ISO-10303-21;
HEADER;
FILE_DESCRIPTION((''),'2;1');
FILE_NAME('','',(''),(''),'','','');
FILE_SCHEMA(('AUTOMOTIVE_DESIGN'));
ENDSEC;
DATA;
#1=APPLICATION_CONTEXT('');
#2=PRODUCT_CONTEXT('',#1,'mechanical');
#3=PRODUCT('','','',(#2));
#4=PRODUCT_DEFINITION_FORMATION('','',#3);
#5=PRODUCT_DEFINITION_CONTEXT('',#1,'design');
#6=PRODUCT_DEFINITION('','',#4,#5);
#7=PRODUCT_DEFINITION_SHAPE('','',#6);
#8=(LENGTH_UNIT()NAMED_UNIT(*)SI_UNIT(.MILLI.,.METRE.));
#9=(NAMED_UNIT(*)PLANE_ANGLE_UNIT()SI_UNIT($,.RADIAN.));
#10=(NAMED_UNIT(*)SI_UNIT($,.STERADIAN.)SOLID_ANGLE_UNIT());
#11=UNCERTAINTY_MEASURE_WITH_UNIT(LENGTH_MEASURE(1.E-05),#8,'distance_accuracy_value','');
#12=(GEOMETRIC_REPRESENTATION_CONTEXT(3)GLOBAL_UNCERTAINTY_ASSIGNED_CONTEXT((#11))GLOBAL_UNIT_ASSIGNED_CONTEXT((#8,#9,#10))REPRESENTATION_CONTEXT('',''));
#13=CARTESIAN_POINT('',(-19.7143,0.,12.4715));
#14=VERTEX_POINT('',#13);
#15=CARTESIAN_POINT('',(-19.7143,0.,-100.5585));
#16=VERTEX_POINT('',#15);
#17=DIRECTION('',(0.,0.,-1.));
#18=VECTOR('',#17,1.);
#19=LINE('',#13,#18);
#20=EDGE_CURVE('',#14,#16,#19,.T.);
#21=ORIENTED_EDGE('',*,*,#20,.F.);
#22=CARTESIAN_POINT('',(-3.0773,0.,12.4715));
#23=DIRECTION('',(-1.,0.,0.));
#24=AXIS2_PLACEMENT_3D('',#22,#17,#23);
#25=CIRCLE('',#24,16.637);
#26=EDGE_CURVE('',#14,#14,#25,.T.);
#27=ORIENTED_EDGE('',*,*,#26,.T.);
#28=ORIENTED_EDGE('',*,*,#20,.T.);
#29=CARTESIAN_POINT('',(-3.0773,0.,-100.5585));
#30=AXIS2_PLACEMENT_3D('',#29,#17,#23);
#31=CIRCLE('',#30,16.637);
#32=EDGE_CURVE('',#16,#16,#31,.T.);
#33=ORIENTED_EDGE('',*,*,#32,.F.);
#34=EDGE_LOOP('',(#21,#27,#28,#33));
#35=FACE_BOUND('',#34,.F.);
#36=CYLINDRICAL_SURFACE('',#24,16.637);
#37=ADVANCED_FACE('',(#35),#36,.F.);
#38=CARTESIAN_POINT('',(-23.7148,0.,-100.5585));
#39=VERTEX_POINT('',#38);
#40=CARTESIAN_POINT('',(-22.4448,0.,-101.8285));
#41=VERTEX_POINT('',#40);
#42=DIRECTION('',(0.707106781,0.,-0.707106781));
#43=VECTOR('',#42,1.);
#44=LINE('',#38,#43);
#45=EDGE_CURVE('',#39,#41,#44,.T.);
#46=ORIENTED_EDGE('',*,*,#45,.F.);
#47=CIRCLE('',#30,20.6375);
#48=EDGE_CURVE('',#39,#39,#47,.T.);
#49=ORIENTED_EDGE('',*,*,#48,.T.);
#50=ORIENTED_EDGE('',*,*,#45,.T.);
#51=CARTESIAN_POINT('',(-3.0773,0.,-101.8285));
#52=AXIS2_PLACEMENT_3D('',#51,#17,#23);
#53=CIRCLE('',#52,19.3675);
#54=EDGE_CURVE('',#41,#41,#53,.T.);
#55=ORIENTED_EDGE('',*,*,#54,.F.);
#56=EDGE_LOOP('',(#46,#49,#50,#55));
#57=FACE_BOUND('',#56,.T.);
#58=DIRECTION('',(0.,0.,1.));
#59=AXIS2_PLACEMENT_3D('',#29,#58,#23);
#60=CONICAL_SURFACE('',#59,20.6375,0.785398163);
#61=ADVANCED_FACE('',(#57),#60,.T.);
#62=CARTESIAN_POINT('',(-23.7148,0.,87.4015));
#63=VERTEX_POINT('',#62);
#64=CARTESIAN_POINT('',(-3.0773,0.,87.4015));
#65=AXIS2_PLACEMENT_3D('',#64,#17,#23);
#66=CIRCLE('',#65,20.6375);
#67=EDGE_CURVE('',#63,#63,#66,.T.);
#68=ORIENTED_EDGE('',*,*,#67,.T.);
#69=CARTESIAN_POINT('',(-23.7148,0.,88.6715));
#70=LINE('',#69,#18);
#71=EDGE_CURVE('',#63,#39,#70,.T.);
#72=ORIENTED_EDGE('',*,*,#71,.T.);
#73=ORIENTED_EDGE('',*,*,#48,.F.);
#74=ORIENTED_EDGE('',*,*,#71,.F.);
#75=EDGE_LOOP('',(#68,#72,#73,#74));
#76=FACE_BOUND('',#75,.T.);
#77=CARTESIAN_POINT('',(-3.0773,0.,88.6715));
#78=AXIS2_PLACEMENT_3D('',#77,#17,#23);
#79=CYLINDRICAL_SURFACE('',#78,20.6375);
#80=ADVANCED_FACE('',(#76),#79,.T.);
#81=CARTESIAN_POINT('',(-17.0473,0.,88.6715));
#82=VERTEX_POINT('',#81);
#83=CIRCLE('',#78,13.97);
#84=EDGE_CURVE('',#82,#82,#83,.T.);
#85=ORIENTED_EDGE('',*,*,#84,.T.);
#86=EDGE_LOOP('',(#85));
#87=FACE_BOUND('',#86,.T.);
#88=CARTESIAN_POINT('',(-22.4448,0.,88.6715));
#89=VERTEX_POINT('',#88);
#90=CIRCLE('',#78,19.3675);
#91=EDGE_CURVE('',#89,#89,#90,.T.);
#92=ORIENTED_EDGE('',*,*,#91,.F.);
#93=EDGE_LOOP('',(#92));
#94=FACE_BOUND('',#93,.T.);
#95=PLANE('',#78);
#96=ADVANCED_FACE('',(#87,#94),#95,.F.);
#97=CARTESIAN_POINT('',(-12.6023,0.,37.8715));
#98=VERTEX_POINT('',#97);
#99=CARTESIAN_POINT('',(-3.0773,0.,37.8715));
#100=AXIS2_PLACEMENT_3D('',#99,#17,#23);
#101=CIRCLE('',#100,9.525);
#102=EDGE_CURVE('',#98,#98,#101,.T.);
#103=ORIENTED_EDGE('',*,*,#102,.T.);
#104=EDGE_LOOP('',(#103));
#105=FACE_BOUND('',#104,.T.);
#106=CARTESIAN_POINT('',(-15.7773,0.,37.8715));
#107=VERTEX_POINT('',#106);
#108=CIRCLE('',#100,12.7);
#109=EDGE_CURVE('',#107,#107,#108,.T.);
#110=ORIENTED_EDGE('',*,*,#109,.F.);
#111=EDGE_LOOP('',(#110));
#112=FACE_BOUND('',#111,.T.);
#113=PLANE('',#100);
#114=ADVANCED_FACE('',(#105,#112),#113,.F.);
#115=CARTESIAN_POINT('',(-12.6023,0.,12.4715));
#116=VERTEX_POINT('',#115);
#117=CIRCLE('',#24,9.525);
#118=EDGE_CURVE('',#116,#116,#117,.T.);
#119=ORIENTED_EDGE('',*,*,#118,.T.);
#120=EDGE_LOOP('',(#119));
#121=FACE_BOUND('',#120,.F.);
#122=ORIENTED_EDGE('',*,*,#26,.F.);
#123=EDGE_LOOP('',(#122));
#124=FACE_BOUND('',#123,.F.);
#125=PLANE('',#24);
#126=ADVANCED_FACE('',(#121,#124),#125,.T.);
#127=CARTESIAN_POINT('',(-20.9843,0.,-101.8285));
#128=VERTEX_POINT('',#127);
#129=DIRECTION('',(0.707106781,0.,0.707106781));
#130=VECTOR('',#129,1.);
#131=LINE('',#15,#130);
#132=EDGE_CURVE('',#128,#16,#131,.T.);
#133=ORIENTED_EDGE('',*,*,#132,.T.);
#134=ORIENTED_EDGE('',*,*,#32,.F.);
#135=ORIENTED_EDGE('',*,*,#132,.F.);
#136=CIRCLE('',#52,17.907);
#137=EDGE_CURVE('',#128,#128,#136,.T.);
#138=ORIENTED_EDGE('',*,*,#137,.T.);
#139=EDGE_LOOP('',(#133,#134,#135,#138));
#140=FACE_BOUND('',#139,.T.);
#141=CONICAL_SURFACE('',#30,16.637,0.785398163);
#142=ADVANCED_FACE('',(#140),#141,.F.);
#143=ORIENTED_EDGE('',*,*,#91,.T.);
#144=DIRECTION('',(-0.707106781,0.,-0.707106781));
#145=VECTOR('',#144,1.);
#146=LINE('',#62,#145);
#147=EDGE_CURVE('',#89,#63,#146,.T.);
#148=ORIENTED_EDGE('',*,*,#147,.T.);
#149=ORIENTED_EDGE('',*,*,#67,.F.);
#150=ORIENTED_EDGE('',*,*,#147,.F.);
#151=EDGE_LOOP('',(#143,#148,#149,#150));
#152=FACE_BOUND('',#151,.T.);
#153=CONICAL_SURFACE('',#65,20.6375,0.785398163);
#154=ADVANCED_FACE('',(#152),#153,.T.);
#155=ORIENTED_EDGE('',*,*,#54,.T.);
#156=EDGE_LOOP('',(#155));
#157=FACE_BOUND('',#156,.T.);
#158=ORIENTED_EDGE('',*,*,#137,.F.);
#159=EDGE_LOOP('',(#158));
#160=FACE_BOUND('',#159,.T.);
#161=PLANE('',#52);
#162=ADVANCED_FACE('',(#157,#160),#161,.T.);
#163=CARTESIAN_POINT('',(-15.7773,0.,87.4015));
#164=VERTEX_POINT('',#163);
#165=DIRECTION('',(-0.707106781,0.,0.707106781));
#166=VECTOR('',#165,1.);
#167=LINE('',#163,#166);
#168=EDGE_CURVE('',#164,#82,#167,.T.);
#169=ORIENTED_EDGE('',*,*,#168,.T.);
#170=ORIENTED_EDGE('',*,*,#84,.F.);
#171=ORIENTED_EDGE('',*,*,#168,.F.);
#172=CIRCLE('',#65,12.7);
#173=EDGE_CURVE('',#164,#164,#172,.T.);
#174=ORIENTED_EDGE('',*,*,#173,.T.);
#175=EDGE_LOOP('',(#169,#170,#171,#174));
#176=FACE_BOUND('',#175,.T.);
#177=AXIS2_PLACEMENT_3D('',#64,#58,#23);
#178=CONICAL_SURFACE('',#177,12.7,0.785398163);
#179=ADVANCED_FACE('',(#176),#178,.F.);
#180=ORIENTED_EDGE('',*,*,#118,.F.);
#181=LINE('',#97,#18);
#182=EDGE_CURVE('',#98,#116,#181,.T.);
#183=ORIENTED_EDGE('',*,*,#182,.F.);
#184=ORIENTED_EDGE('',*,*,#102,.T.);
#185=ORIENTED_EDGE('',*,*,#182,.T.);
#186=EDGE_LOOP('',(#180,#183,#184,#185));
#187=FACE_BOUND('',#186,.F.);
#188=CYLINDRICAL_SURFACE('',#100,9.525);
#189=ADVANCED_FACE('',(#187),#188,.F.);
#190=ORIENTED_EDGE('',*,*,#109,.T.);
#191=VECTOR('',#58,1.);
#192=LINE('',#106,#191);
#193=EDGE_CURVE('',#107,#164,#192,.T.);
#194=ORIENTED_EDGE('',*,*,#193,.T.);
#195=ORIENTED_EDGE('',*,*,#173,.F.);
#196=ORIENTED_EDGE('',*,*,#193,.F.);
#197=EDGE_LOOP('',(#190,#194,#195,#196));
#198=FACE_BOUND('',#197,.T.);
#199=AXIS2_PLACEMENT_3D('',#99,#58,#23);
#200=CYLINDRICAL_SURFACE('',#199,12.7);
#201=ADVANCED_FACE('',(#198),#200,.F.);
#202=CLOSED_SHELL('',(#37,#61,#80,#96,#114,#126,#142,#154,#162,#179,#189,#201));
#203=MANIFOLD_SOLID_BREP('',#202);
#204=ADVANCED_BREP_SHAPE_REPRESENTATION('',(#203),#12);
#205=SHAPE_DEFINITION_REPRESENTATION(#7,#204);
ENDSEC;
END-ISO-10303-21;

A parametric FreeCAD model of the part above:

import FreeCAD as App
import Part
import Sketcher

V = App.Vector
Q = App.Units.Quantity


def edges_at(feature, points):
    """Names of the edges that pass closest to the given points."""
    edges = feature.Shape.Edges
    near = lambda p: min(range(len(edges)), key=lambda i: edges[i].distToShape(Part.Vertex(*p))[0])
    return sorted({f"Edge{near(p) + 1}" for p in points})


def add_polygon(sketch, points):
    """Adds a closed chain of lines whose ends are joined by coincident constraints."""
    first, n = sketch.GeometryCount, len(points)
    for a, b in zip(points, points[1:] + points[:1]):
        sketch.addGeometry(Part.LineSegment(App.Vector(*a, 0), App.Vector(*b, 0)), False)
    for i in range(n):
        sketch.addConstraint(Sketcher.Constraint("Coincident", first + i, 2, first + (i + 1) % n, 1))

doc = App.newDocument("Part")
body = doc.addObject("PartDesign::Body", "Body")

# Sketch on XZ plane
sketch1 = doc.addObject("Sketcher::SketchObject", "Sketch")
body.addObject(sketch1)
sketch1.AttachmentSupport = (doc.XZ_Plane, [""])
sketch1.MapMode = "FlatFace"
add_polygon(sketch1, [(-12.6, 37.9), (-12.6, 12.5), (-19.7, 12.5), (-19.7, -101.8), (-23.7, -101.8), (-23.7, 88.7), (-15.8, 88.7), (-15.8, 37.9)])  # lines 0-7
sketch1.addGeometry(Part.LineSegment(V(-3.1, 88.7, 0), V(-3.1, -101.8, 0)), True)  # axis
sketch1.addConstraint([
    Sketcher.Constraint("Vertical", 0),
    Sketcher.Constraint("Horizontal", 1),
    Sketcher.Constraint("Vertical", 2),
    Sketcher.Constraint("Horizontal", 3),
    Sketcher.Constraint("Vertical", 4),
    Sketcher.Constraint("Horizontal", 5),
    Sketcher.Constraint("Vertical", 6),
    Sketcher.Constraint("Horizontal", 7),
    Sketcher.Constraint("Vertical", 8),
    Sketcher.Constraint("Horizontal", 5, 2, 8, 1),
    Sketcher.Constraint("Horizontal", 3, 2, 8, 2),
    Sketcher.Constraint("DistanceY", 6, 2, 6, 1, Q("2 in")),
    Sketcher.Constraint("DistanceY", 2, 2, 2, 1, Q("4.5 in")),
    Sketcher.Constraint("DistanceX", 5, 2, 8, 1, Q("0.5 in")),
    Sketcher.Constraint("DistanceX", 7, 1, 7, 2, Q("0.125 in")),
    Sketcher.Constraint("DistanceY", 0, 2, 0, 1, Q("1 in")),
    Sketcher.Constraint("DistanceX", 4, 2, 8, 1, Q("0.8125 in")),
    Sketcher.Constraint("DistanceX", 2, 2, 8, 2, Q("0.655 in")),
    Sketcher.Constraint("DistanceY", -1, 1, 0, 2, Q("0.491 in")),
    Sketcher.Constraint("DistanceX", 0, 2, -1, 1, Q("12.6023 mm")),
])
revolution = doc.addObject("PartDesign::Revolution", "Revolution")
body.addObject(revolution)
revolution.Profile = sketch1
revolution.ReferenceAxis = (sketch1, ["Axis0"])
revolution.Angle = 360
doc.recompute()

chamfer = doc.addObject("PartDesign::Chamfer", "Chamfer")
body.addObject(chamfer)
chamfer.Base = (revolution, edges_at(revolution, [
    (17.56, 0, -101.829),
    (17.56, 0, 88.671),
    (9.623, 0, 88.671),
    (13.56, 0, -101.829),
]))
chamfer.Size = Q("0.05 in")

doc.recompute()
